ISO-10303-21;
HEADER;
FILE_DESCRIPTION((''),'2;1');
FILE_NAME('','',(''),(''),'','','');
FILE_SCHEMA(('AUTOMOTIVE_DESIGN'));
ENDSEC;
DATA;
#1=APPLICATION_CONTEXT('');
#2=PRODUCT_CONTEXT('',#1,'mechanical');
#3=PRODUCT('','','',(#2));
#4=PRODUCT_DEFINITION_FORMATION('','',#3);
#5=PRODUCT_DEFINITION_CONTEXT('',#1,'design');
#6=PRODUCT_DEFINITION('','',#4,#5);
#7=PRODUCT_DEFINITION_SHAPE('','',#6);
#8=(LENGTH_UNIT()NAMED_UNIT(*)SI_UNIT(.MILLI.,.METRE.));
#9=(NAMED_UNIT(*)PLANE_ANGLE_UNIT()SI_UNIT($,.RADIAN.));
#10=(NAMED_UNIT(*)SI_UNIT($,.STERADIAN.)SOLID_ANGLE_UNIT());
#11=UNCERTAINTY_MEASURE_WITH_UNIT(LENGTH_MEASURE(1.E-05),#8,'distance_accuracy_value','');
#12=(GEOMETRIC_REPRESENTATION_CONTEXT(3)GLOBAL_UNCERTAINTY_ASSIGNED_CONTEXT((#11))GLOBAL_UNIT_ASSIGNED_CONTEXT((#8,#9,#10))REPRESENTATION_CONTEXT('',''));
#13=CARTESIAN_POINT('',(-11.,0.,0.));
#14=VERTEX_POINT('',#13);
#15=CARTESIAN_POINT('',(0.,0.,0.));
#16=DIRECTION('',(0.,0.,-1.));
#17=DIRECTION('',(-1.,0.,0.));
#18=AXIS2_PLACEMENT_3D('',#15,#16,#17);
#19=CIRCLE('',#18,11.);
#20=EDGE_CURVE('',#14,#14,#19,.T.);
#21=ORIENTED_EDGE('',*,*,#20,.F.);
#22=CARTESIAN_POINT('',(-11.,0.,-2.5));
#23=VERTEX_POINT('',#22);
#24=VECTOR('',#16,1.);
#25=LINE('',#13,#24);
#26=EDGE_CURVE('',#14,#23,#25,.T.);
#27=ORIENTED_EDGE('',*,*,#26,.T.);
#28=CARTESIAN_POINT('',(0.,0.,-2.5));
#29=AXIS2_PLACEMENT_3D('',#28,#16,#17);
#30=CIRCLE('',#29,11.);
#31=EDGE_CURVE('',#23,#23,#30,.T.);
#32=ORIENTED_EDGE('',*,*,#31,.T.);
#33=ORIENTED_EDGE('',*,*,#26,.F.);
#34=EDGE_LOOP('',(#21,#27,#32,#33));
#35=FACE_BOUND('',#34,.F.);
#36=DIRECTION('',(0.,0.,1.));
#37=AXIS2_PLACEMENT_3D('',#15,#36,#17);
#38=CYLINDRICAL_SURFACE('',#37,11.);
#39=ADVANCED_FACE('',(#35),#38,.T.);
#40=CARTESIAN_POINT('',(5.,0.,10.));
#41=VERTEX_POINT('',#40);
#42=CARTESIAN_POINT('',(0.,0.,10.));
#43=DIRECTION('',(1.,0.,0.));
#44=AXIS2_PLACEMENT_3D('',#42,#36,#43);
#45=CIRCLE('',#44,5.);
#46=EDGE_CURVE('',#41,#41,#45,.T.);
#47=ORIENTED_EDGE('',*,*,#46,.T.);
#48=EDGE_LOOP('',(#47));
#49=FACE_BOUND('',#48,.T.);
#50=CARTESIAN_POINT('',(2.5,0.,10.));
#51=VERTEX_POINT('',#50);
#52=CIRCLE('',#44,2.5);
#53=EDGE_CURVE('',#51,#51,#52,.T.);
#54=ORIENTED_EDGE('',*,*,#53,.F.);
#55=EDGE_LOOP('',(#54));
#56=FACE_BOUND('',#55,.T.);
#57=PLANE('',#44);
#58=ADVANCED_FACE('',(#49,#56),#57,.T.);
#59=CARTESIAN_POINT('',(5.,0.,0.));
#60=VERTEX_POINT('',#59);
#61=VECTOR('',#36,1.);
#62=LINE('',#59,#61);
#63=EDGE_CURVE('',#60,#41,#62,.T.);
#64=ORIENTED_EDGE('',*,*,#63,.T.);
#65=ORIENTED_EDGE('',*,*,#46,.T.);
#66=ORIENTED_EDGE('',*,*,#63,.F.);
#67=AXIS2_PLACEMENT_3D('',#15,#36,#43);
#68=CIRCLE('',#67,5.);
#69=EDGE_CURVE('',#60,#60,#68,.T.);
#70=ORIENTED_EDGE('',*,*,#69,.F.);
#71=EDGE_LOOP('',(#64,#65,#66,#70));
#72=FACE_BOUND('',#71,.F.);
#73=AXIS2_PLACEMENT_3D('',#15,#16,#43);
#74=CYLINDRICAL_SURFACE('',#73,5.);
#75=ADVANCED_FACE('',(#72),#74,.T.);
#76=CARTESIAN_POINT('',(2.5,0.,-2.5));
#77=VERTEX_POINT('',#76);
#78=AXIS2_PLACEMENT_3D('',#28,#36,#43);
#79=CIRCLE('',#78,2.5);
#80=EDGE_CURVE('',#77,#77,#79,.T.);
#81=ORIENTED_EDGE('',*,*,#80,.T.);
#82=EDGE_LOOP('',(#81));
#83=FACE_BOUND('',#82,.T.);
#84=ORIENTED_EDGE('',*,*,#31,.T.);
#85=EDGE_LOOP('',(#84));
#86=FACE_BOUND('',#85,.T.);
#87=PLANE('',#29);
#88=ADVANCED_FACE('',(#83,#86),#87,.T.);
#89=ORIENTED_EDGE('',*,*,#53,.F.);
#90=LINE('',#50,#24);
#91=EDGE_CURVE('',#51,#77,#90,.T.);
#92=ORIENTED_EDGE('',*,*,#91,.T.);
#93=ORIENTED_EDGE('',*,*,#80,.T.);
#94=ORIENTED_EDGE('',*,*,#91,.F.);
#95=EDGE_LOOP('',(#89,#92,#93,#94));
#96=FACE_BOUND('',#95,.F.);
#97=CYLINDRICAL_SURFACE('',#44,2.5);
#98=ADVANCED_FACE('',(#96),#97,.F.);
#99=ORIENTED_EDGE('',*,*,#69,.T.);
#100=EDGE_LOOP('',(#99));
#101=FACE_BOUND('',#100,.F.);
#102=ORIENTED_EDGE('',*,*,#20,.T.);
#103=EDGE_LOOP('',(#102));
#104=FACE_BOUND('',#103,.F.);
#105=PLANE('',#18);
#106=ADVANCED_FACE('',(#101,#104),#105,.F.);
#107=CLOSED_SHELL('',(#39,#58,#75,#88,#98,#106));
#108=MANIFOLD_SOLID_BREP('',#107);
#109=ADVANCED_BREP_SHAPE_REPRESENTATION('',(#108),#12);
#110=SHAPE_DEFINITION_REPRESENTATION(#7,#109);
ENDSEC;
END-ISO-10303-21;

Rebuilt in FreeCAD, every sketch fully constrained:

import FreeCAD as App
import Part
import Sketcher
from FreeCAD import Vector

doc = App.newDocument("Part")
body = doc.addObject("PartDesign::Body", "Body")

sketch1 = body.newObject("Sketcher::SketchObject", "Sketch")
sketch1.AttachmentSupport = (doc.getObject("XY_Plane"), [""])
sketch1.MapMode = "FlatFace"
sketch1.addGeometry(Part.Circle(Vector(0, 0, 0), Vector(0, 0, 1), 5), False)
sketch1.addConstraint([
    Sketcher.Constraint("Coincident", 0, 3, -1, 1),
    Sketcher.Constraint("Diameter", 0, 10.0),
])
pad1 = body.newObject("PartDesign::Pad", "Pad")
pad1.Profile = sketch1
pad1.Length = 10

sketch2 = body.newObject("Sketcher::SketchObject", "Sketch001")
sketch2.AttachmentSupport = (doc.getObject("XY_Plane"), [""])
sketch2.MapMode = "FlatFace"
sketch2.addGeometry(Part.Circle(Vector(0, 0, 0), Vector(0, 0, 1), 11), False)
sketch2.addConstraint([
    Sketcher.Constraint("Coincident", 0, 3, -1, 1),
    Sketcher.Constraint("Diameter", 0, 22.0),
])
pad2 = body.newObject("PartDesign::Pad", "Pad001")
pad2.Profile = sketch2
pad2.Length = 2.5
pad2.Reversed = True

sketch3 = body.newObject("Sketcher::SketchObject", "Sketch002")
sketch3.AttachmentSupport = (doc.getObject("XY_Plane"), [""])
sketch3.MapMode = "FlatFace"
sketch3.AttachmentOffset = App.Placement(Vector(0, 0, 10), App.Rotation())
sketch3.addGeometry(Part.Circle(Vector(0, 0, 0), Vector(0, 0, 1), 2.5), False)
sketch3.addConstraint([
    Sketcher.Constraint("Coincident", 0, 3, -1, 1),
    Sketcher.Constraint("Diameter", 0, 5.0),
])
pocket1 = body.newObject("PartDesign::Pocket", "Pocket")
pocket1.Profile = sketch3
pocket1.Length = 12.5

doc.recompute()
